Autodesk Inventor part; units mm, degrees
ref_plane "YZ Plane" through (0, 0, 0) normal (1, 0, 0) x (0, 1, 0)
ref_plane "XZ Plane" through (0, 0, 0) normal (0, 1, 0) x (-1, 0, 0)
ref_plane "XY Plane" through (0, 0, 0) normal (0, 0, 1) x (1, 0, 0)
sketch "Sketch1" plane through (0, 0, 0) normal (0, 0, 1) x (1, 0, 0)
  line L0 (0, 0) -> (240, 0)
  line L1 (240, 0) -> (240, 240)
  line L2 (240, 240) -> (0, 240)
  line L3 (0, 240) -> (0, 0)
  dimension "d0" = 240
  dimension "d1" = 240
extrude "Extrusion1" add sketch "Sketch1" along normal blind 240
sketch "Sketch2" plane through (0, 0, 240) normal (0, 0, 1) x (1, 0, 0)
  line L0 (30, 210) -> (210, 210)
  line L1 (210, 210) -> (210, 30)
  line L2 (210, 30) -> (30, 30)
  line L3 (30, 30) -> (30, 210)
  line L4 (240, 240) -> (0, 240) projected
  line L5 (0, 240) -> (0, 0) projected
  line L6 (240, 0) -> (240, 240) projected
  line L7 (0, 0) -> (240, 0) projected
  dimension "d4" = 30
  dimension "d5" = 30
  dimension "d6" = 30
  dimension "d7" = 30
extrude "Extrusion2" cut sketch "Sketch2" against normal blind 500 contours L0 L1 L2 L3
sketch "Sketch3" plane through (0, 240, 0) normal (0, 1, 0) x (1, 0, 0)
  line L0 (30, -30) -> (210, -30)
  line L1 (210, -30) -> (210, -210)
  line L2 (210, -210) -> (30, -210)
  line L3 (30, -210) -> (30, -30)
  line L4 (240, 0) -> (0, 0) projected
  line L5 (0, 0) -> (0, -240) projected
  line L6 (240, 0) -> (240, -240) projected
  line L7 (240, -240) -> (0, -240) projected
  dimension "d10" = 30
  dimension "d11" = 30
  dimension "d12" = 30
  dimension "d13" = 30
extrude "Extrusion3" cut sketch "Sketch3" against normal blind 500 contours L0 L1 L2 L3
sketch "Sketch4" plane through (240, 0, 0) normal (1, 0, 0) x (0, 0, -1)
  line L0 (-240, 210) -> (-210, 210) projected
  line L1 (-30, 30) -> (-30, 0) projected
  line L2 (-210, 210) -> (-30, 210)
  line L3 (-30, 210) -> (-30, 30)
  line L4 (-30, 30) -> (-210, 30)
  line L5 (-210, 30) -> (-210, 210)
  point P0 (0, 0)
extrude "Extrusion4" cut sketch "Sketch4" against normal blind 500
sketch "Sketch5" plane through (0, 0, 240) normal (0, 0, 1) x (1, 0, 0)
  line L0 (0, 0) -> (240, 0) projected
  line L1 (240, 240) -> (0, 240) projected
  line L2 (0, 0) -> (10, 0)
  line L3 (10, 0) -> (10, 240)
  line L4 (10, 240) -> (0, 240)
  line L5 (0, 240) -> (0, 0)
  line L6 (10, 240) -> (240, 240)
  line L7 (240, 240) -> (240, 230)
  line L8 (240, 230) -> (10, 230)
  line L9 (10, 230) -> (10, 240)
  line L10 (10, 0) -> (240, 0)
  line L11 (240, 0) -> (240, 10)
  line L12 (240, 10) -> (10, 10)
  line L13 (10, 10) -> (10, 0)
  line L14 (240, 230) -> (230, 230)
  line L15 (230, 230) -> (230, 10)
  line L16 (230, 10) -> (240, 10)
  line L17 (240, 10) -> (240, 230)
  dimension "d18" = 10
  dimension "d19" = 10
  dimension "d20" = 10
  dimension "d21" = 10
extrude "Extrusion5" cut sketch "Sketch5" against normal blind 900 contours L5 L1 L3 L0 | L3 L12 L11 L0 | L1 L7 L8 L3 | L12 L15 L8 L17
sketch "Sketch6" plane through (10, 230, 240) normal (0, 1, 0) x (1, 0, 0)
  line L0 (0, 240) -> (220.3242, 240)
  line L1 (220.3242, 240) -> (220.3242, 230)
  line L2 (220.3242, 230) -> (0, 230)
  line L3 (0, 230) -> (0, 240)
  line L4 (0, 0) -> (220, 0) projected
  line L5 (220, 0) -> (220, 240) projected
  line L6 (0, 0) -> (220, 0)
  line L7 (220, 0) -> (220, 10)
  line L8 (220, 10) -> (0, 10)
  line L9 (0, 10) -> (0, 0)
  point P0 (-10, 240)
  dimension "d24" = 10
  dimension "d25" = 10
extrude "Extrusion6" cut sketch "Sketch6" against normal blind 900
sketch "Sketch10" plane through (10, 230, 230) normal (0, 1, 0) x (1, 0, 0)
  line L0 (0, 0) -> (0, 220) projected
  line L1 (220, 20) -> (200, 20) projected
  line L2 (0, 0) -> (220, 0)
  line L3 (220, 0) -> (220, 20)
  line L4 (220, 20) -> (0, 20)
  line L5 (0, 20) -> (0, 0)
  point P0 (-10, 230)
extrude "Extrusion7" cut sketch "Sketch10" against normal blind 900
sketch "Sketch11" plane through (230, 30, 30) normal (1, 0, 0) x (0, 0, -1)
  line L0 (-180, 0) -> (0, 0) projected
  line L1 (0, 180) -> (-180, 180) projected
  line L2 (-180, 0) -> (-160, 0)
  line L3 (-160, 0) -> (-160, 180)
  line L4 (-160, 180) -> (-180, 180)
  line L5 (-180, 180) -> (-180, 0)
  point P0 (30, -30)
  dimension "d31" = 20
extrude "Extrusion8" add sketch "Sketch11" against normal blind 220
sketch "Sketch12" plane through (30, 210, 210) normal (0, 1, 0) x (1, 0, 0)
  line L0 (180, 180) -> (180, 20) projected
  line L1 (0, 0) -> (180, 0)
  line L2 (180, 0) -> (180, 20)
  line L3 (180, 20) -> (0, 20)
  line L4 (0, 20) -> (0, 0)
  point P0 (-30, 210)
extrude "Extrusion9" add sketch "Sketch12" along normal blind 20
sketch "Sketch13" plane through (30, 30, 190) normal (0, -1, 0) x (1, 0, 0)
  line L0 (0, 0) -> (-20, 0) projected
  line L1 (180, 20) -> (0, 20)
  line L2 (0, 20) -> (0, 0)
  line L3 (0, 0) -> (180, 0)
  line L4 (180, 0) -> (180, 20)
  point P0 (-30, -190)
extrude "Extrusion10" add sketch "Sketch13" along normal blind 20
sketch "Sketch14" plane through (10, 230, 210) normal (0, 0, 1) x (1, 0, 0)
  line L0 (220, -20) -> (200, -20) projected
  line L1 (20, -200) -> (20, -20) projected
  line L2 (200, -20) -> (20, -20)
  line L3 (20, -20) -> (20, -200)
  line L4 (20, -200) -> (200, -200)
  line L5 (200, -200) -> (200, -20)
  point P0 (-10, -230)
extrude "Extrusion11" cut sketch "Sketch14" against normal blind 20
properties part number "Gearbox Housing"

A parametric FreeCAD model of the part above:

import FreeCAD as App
import Part
import Sketcher

V = App.Vector
Q = App.Units.Quantity


def add_polygon(sketch, points):
    """Adds a closed chain of lines whose ends are joined by coincident constraints."""
    first, n = sketch.GeometryCount, len(points)
    for a, b in zip(points, points[1:] + points[:1]):
        sketch.addGeometry(Part.LineSegment(App.Vector(*a, 0), App.Vector(*b, 0)), False)
    for i in range(n):
        sketch.addConstraint(Sketcher.Constraint("Coincident", first + i, 2, first + (i + 1) % n, 1))

doc = App.newDocument("Part")
body = doc.addObject("PartDesign::Body", "Body")

sketch1 = body.newObject("Sketcher::SketchObject", "Sketch")
sketch1.AttachmentSupport = (doc.getObject("XY_Plane"), [""])
sketch1.MapMode = "FlatFace"
add_polygon(sketch1, [(0, 240), (0, 0), (240, 0), (240, 240)])
sketch1.addConstraint(Sketcher.Constraint("Vertical", 0))
sketch1.addConstraint(Sketcher.Constraint("Horizontal", 1))
sketch1.addConstraint(Sketcher.Constraint("Vertical", 2))
sketch1.addConstraint(Sketcher.Constraint("Horizontal", 3))
sketch1.addConstraint(Sketcher.Constraint("Coincident", 0, 2, -1, 1))
sketch1.addConstraint(Sketcher.Constraint("Equal", 3, 0))
sketch1.addConstraint(Sketcher.Constraint("DistanceX", 1, 1, 1, 2, Q("240 mm")))
pad1 = body.newObject("PartDesign::Pad", "Pad")
pad1.Profile = sketch1
pad1.Length = 240

sketch2 = body.newObject("Sketcher::SketchObject", "Sketch001")
sketch2.AttachmentSupport = (doc.getObject("XY_Plane"), [""])
sketch2.MapMode = "FlatFace"
sketch2.AttachmentOffset = App.Placement(V(0, 0, 240), App.Rotation())
add_polygon(sketch2, [(210, 210), (30, 210), (30, 30), (210, 30)])
sketch2.addConstraint(Sketcher.Constraint("Horizontal", 0))
sketch2.addConstraint(Sketcher.Constraint("Vertical", 1))
sketch2.addConstraint(Sketcher.Constraint("Horizontal", 2))
sketch2.addConstraint(Sketcher.Constraint("Vertical", 3))
sketch2.addConstraint(Sketcher.Constraint("Equal", 2, 1))
sketch2.addConstraint(Sketcher.Constraint("DistanceX", -1, 1, 0, 2, Q("30 mm")))
sketch2.addConstraint(Sketcher.Constraint("DistanceY", -1, 1, 1, 2, Q("30 mm")))
sketch2.addConstraint(Sketcher.Constraint("DistanceX", 0, 2, 0, 1, Q("180 mm")))
pocket1 = body.newObject("PartDesign::Pocket", "Pocket")
pocket1.Profile = sketch2
pocket1.Length = 500

sketch3 = body.newObject("Sketcher::SketchObject", "Sketch002")
sketch3.AttachmentSupport = (doc.getObject("XZ_Plane"), [""])
sketch3.MapMode = "FlatFace"
sketch3.AttachmentOffset = App.Placement(V(0, 0, -240), App.Rotation())
add_polygon(sketch3, [(210, 30), (30, 30), (30, 210), (210, 210)])
sketch3.addConstraint(Sketcher.Constraint("Horizontal", 0))
sketch3.addConstraint(Sketcher.Constraint("Vertical", 1))
sketch3.addConstraint(Sketcher.Constraint("Horizontal", 2))
sketch3.addConstraint(Sketcher.Constraint("Vertical", 3))
sketch3.addConstraint(Sketcher.Constraint("Equal", 2, 1))
sketch3.addConstraint(Sketcher.Constraint("DistanceX", -1, 1, 0, 2, Q("30 mm")))
sketch3.addConstraint(Sketcher.Constraint("DistanceY", -1, 1, 0, 2, Q("30 mm")))
sketch3.addConstraint(Sketcher.Constraint("DistanceX", 0, 2, 0, 1, Q("180 mm")))
pocket2 = body.newObject("PartDesign::Pocket", "Pocket001")
pocket2.Profile = sketch3
pocket2.Length = 500
pocket2.Reversed = True

sketch4 = body.newObject("Sketcher::SketchObject", "Sketch003")
sketch4.AttachmentSupport = (doc.getObject("YZ_Plane"), [""])
sketch4.MapMode = "FlatFace"
sketch4.AttachmentOffset = App.Placement(V(0, 0, 240), App.Rotation())
add_polygon(sketch4, [(210, 30), (210, 210), (30, 210), (30, 30)])
sketch4.addConstraint(Sketcher.Constraint("Vertical", 0))
sketch4.addConstraint(Sketcher.Constraint("Horizontal", 1))
sketch4.addConstraint(Sketcher.Constraint("Vertical", 2))
sketch4.addConstraint(Sketcher.Constraint("Horizontal", 3))
sketch4.addConstraint(Sketcher.Constraint("Equal", 3, 0))
sketch4.addConstraint(Sketcher.Constraint("DistanceX", 1, 2, 1, 1, Q("180 mm")))
sketch4.addConstraint(Sketcher.Constraint("DistanceX", -1, 1, 0, 2, Q("210 mm")))
sketch4.addConstraint(Sketcher.Constraint("DistanceY", -1, 1, 0, 2, Q("210 mm")))
pocket3 = body.newObject("PartDesign::Pocket", "Pocket002")
pocket3.Profile = sketch4
pocket3.Length = 500

sketch5 = body.newObject("Sketcher::SketchObject", "Sketch004")
sketch5.AttachmentSupport = (doc.getObject("XY_Plane"), [""])
sketch5.MapMode = "FlatFace"
sketch5.AttachmentOffset = App.Placement(V(0, 0, 240), App.Rotation())
add_polygon(sketch5, [(0, 240), (0, 0), (240, 0), (240, 240)])
add_polygon(sketch5, [(10, 10), (10, 230), (230, 230), (230, 10)])
sketch5.addConstraint(Sketcher.Constraint("Vertical", 0))
sketch5.addConstraint(Sketcher.Constraint("Horizontal", 1))
sketch5.addConstraint(Sketcher.Constraint("Vertical", 2))
sketch5.addConstraint(Sketcher.Constraint("Horizontal", 3))
sketch5.addConstraint(Sketcher.Constraint("Vertical", 4))
sketch5.addConstraint(Sketcher.Constraint("Horizontal", 5))
sketch5.addConstraint(Sketcher.Constraint("Vertical", 6))
sketch5.addConstraint(Sketcher.Constraint("Horizontal", 7))
sketch5.addConstraint(Sketcher.Constraint("Coincident", 0, 2, -1, 1))
sketch5.addConstraint(Sketcher.Constraint("Equal", 3, 0))
sketch5.addConstraint(Sketcher.Constraint("Equal", 7, 4))
sketch5.addConstraint(Sketcher.Constraint("DistanceX", -1, 1, 4, 2, Q("10 mm")))
sketch5.addConstraint(Sketcher.Constraint("DistanceY", -1, 1, 6, 2, Q("10 mm")))
sketch5.addConstraint(Sketcher.Constraint("DistanceY", 4, 2, 3, 2, Q("10 mm")))
sketch5.addConstraint(Sketcher.Constraint("DistanceX", 1, 1, 1, 2, Q("240 mm")))
pocket4 = body.newObject("PartDesign::Pocket", "Pocket003")
pocket4.Profile = sketch5
pocket4.Length = 900

sketch6 = body.newObject("Sketcher::SketchObject", "Sketch005")
sketch6.AttachmentSupport = (doc.getObject("XZ_Plane"), [""])
sketch6.MapMode = "FlatFace"
sketch6.AttachmentOffset = App.Placement(V(0, 0, -230), App.Rotation())
add_polygon(sketch6, [(230, 240), (230, 230), (10, 230), (10, 240)])
add_polygon(sketch6, [(10, 0), (10, 10), (230, 10), (230, 0)])
sketch6.addConstraint(Sketcher.Constraint("Vertical", 0))
sketch6.addConstraint(Sketcher.Constraint("Horizontal", 1))
sketch6.addConstraint(Sketcher.Constraint("Vertical", 2))
sketch6.addConstraint(Sketcher.Constraint("Horizontal", 3))
sketch6.addConstraint(Sketcher.Constraint("Vertical", 4))
sketch6.addConstraint(Sketcher.Constraint("Horizontal", 5))
sketch6.addConstraint(Sketcher.Constraint("Vertical", 6))
sketch6.addConstraint(Sketcher.Constraint("Horizontal", 7))
sketch6.addConstraint(Sketcher.Constraint("PointOnObject", 6, 2, -1))
sketch6.addConstraint(Sketcher.Constraint("Vertical", 2, 2, 4, 2))
sketch6.addConstraint(Sketcher.Constraint("Equal", 2, 4))
sketch6.addConstraint(Sketcher.Constraint("DistanceY", 0, 2, 0, 1, Q("10 mm")))
sketch6.addConstraint(Sketcher.Constraint("DistanceX", -1, 1, 1, 2, Q("10 mm")))
sketch6.addConstraint(Sketcher.Constraint("DistanceX", 1, 2, 1, 1, Q("220 mm")))
sketch6.addConstraint(Sketcher.Constraint("DistanceY", -1, 1, 0, 2, Q("230 mm")))
sketch6.addConstraint(Sketcher.Constraint("DistanceX", 5, 1, 5, 2, Q("220.3242 mm")))
pocket5 = body.newObject("PartDesign::Pocket", "Pocket004")
pocket5.Profile = sketch6
pocket5.Length = 900
pocket5.Reversed = True

sketch7 = body.newObject("Sketcher::SketchObject", "Sketch006")
sketch7.AttachmentSupport = (doc.getObject("XZ_Plane"), [""])
sketch7.MapMode = "FlatFace"
sketch7.AttachmentOffset = App.Placement(V(0, 0, -230), App.Rotation())
add_polygon(sketch7, [(10, 210), (10, 230), (230, 230), (230, 210)])
sketch7.addConstraint(Sketcher.Constraint("Vertical", 0))
sketch7.addConstraint(Sketcher.Constraint("Horizontal", 1))
sketch7.addConstraint(Sketcher.Constraint("Vertical", 2))
sketch7.addConstraint(Sketcher.Constraint("Horizontal", 3))
sketch7.addConstraint(Sketcher.Constraint("DistanceX", 1, 1, 1, 2, Q("220 mm")))
sketch7.addConstraint(Sketcher.Constraint("DistanceY", 0, 1, 0, 2, Q("20 mm")))
sketch7.addConstraint(Sketcher.Constraint("DistanceX", -1, 1, 0, 2, Q("10 mm")))
sketch7.addConstraint(Sketcher.Constraint("DistanceY", -1, 1, 0, 2, Q("230 mm")))
pocket6 = body.newObject("PartDesign::Pocket", "Pocket005")
pocket6.Profile = sketch7
pocket6.Length = 900
pocket6.Reversed = True

sketch8 = body.newObject("Sketcher::SketchObject", "Sketch007")
sketch8.AttachmentSupport = (doc.getObject("YZ_Plane"), [""])
sketch8.MapMode = "FlatFace"
sketch8.AttachmentOffset = App.Placement(V(0, 0, 230), App.Rotation())
add_polygon(sketch8, [(210, 210), (30, 210), (30, 190), (210, 190)])
sketch8.addConstraint(Sketcher.Constraint("Horizontal", 0))
sketch8.addConstraint(Sketcher.Constraint("Vertical", 1))
sketch8.addConstraint(Sketcher.Constraint("Horizontal", 2))
sketch8.addConstraint(Sketcher.Constraint("Vertical", 3))
sketch8.addConstraint(Sketcher.Constraint("DistanceY", 1, 2, 1, 1, Q("20 mm")))
sketch8.addConstraint(Sketcher.Constraint("DistanceX", 0, 2, 0, 1, Q("180 mm")))
sketch8.addConstraint(Sketcher.Constraint("DistanceX", -1, 1, 0, 2, Q("30 mm")))
sketch8.addConstraint(Sketcher.Constraint("DistanceY", -1, 1, 0, 2, Q("210 mm")))
pad2 = body.newObject("PartDesign::Pad", "Pad001")
pad2.Profile = sketch8
pad2.Length = 220
pad2.Reversed = True

sketch9 = body.newObject("Sketcher::SketchObject", "Sketch008")
sketch9.AttachmentSupport = (doc.getObject("XZ_Plane"), [""])
sketch9.MapMode = "FlatFace"
sketch9.AttachmentOffset = App.Placement(V(0, 0, -210), App.Rotation())
add_polygon(sketch9, [(30, 190), (30, 210), (210, 210), (210, 190)])
sketch9.addConstraint(Sketcher.Constraint("Vertical", 0))
sketch9.addConstraint(Sketcher.Constraint("Horizontal", 1))
sketch9.addConstraint(Sketcher.Constraint("Vertical", 2))
sketch9.addConstraint(Sketcher.Constraint("Horizontal", 3))
sketch9.addConstraint(Sketcher.Constraint("DistanceX", 1, 1, 1, 2, Q("180 mm")))
sketch9.addConstraint(Sketcher.Constraint("DistanceY", 0, 1, 0, 2, Q("20 mm")))
sketch9.addConstraint(Sketcher.Constraint("DistanceX", -1, 1, 0, 2, Q("30 mm")))
sketch9.addConstraint(Sketcher.Constraint("DistanceY", -1, 1, 0, 2, Q("210 mm")))
pad3 = body.newObject("PartDesign::Pad", "Pad002")
pad3.Profile = sketch9
pad3.Length = 20
pad3.Reversed = True

sketch10 = body.newObject("Sketcher::SketchObject", "Sketch009")
sketch10.AttachmentSupport = (doc.getObject("XZ_Plane"), [""])
sketch10.MapMode = "FlatFace"
sketch10.AttachmentOffset = App.Placement(V(0, 0, -30), App.Rotation())
add_polygon(sketch10, [(210, 190), (210, 210), (30, 210), (30, 190)])
sketch10.addConstraint(Sketcher.Constraint("Vertical", 0))
sketch10.addConstraint(Sketcher.Constraint("Horizontal", 1))
sketch10.addConstraint(Sketcher.Constraint("Vertical", 2))
sketch10.addConstraint(Sketcher.Constraint("Horizontal", 3))
sketch10.addConstraint(Sketcher.Constraint("DistanceX", 1, 2, 1, 1, Q("180 mm")))
sketch10.addConstraint(Sketcher.Constraint("DistanceY", 0, 1, 0, 2, Q("20 mm")))
sketch10.addConstraint(Sketcher.Constraint("DistanceX", -1, 1, 0, 2, Q("210 mm")))
sketch10.addConstraint(Sketcher.Constraint("DistanceY", -1, 1, 0, 2, Q("210 mm")))
pad4 = body.newObject("PartDesign::Pad", "Pad003")
pad4.Profile = sketch10
pad4.Length = 20

sketch11 = body.newObject("Sketcher::SketchObject", "Sketch010")
sketch11.AttachmentSupport = (doc.getObject("XY_Plane"), [""])
sketch11.MapMode = "FlatFace"
sketch11.AttachmentOffset = App.Placement(V(0, 0, 210), App.Rotation())
add_polygon(sketch11, [(30, 210), (30, 30), (210, 30), (210, 210)])
sketch11.addConstraint(Sketcher.Constraint("Vertical", 0))
sketch11.addConstraint(Sketcher.Constraint("Horizontal", 1))
sketch11.addConstraint(Sketcher.Constraint("Vertical", 2))
sketch11.addConstraint(Sketcher.Constraint("Horizontal", 3))
sketch11.addConstraint(Sketcher.Constraint("Equal", 3, 0))
sketch11.addConstraint(Sketcher.Constraint("DistanceX", 1, 1, 1, 2, Q("180 mm")))
sketch11.addConstraint(Sketcher.Constraint("DistanceX", -1, 1, 0, 2, Q("30 mm")))
sketch11.addConstraint(Sketcher.Constraint("DistanceY", -1, 1, 0, 2, Q("30 mm")))
pocket7 = body.newObject("PartDesign::Pocket", "Pocket006")
pocket7.Profile = sketch11
pocket7.Length = 20

doc.recompute()
